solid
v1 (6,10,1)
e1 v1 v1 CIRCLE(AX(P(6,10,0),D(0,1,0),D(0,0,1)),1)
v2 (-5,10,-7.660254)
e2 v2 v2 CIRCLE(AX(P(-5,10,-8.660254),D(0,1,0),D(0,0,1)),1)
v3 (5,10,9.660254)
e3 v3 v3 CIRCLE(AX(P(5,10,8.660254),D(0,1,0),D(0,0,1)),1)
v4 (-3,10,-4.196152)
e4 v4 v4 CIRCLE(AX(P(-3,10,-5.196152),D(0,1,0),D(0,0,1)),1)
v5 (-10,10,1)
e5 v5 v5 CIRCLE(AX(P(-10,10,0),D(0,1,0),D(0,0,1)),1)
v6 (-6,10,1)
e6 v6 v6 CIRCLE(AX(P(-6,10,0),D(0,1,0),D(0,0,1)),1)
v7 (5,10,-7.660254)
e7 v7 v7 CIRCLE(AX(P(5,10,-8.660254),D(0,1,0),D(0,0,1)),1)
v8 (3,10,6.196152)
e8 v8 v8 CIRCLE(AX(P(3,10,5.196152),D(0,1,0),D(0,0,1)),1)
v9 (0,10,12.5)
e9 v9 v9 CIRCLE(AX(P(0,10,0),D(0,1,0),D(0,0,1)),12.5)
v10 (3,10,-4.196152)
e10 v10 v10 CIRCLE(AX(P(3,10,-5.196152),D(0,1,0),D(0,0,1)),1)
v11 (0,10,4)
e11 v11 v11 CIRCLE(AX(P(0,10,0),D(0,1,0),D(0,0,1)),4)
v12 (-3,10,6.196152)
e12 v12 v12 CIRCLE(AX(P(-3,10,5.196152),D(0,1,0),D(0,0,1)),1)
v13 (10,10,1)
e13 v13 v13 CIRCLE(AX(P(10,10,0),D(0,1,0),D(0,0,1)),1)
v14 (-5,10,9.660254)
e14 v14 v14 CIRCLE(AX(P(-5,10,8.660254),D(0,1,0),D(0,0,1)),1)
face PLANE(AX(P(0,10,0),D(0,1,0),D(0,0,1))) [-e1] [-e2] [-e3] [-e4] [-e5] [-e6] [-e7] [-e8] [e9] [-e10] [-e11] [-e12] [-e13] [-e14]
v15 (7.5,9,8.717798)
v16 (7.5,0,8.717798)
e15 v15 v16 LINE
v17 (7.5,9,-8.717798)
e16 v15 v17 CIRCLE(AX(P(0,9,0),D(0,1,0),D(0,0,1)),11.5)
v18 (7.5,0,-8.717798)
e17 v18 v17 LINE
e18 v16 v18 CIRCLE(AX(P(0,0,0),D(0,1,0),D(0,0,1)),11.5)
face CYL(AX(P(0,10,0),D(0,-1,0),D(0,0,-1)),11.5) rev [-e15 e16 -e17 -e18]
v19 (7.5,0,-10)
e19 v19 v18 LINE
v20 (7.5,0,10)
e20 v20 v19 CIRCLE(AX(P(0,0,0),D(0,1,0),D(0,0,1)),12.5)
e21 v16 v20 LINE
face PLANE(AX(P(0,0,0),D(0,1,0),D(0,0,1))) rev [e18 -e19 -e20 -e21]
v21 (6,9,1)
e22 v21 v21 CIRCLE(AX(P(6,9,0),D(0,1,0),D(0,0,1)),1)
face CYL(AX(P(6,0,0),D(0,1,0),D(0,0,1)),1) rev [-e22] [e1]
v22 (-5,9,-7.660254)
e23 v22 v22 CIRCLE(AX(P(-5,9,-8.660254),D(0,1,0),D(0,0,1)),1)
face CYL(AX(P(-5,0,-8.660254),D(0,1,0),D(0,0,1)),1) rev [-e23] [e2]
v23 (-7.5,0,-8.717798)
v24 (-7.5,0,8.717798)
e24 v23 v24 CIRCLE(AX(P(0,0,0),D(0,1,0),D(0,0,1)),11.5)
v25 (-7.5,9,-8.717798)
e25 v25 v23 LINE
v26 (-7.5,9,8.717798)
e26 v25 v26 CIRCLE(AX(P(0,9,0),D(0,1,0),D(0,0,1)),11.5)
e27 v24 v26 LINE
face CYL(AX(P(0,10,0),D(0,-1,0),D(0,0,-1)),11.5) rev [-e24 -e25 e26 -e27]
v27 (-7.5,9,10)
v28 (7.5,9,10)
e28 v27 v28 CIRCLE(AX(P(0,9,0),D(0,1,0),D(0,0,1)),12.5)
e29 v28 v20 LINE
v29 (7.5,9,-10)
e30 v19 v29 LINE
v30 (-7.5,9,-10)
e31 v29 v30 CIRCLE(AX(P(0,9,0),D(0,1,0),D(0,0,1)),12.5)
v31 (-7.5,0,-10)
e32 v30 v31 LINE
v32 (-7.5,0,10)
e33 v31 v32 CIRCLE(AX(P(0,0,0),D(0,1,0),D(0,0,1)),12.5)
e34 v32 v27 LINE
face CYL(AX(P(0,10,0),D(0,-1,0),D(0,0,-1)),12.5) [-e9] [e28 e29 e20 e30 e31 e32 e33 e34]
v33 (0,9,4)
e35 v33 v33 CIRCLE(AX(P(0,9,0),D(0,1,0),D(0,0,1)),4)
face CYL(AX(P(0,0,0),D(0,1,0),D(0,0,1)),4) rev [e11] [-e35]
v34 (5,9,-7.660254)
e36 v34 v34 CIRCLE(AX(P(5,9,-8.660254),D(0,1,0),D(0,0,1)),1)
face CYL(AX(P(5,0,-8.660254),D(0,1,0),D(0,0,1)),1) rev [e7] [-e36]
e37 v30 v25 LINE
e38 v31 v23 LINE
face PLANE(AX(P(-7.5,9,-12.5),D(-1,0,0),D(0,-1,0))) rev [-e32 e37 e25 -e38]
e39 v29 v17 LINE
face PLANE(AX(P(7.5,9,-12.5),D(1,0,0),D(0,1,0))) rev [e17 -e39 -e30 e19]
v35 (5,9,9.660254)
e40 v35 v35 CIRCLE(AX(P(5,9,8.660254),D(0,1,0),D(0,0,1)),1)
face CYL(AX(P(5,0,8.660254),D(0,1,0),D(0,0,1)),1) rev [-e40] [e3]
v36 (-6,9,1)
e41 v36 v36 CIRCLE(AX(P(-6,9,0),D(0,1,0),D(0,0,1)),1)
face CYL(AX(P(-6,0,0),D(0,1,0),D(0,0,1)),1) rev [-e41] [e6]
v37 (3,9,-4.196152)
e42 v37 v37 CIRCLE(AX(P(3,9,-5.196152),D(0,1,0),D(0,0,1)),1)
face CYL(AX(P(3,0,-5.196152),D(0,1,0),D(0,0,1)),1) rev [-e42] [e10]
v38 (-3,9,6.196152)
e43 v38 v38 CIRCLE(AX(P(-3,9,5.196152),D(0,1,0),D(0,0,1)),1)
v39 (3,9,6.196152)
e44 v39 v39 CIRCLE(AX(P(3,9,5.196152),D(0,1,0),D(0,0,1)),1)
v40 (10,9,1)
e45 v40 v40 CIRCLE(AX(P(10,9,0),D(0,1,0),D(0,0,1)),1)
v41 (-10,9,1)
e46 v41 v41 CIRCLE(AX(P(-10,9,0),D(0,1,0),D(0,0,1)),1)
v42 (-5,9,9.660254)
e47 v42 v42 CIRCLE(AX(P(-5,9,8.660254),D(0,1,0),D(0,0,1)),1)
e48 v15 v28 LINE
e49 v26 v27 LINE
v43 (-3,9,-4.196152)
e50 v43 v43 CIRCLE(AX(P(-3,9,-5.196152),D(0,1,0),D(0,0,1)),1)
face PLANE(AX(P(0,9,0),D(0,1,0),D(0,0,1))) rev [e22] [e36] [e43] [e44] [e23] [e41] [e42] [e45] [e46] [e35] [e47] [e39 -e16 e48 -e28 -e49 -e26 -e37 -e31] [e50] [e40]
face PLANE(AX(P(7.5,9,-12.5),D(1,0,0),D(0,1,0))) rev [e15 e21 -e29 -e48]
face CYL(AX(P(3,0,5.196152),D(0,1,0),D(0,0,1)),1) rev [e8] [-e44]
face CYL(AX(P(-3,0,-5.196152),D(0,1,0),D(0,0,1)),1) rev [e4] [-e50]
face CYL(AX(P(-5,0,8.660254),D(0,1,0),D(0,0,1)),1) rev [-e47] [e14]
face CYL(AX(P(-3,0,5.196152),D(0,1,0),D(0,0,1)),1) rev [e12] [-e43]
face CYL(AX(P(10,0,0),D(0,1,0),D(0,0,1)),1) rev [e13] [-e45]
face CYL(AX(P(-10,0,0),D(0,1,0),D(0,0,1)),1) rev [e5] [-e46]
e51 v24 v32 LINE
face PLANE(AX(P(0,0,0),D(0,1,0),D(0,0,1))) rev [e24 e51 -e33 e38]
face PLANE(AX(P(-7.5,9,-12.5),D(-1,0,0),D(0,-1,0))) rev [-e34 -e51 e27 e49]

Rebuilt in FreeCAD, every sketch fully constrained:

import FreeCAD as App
import Part
import Sketcher


def faces_at(feature, points):
    """Names of the faces that lie closest to the given points."""
    faces = feature.Shape.Faces
    near = lambda p: min(range(len(faces)), key=lambda i: faces[i].distToShape(Part.Vertex(*p))[0])
    return sorted({f"Face{near(p) + 1}" for p in points})


def add_polygon(sketch, points):
    """Adds a closed chain of lines whose ends are joined by coincident constraints."""
    first, n = sketch.GeometryCount, len(points)
    for a, b in zip(points, points[1:] + points[:1]):
        sketch.addGeometry(Part.LineSegment(App.Vector(*a, 0), App.Vector(*b, 0)), False)
    for i in range(n):
        sketch.addConstraint(Sketcher.Constraint("Coincident", first + i, 2, first + (i + 1) % n, 1))

doc = App.newDocument("Part")
body = doc.addObject("PartDesign::Body", "Body")

# Sketch on XZ plane
sketch1 = body.newObject("Sketcher::SketchObject", "Sketch")
sketch1.AttachmentSupport = (doc.getObject("XZ_Plane"), [""])
sketch1.MapMode = "FlatFace"
sketch1.addGeometry(Part.Circle(App.Vector(0, 0, 0), App.Vector(0, 0, 1), 12.5), False)
sketch1.addConstraint(Sketcher.Constraint("Coincident", 0, 3, -1, 1))
sketch1.addConstraint(Sketcher.Constraint("Diameter", 0, 25.0))
pad1 = body.newObject("PartDesign::Pad", "Pad")
pad1.Profile = sketch1
pad1.Length = 10
pad1.Reversed = True
doc.recompute()

thickness = body.newObject("PartDesign::Thickness", "Thickness")
thickness.Base = (pad1, faces_at(pad1, [(0, 0, 0)]))
thickness.Value = 1
thickness.Reversed = True
thickness.Join = "Intersection"

# Sketch on XY plane
sketch2 = body.newObject("Sketcher::SketchObject", "Sketch001")
sketch2.AttachmentSupport = (doc.getObject("XY_Plane"), [""])
sketch2.MapMode = "FlatFace"
add_polygon(sketch2, [(-7.5, 9), (-7.5, 0), (7.5, 0), (7.5, 9)])  # lines 0-3
sketch2.addConstraint(Sketcher.Constraint("Vertical", 0))
sketch2.addConstraint(Sketcher.Constraint("Horizontal", 1))
sketch2.addConstraint(Sketcher.Constraint("Vertical", 2))
sketch2.addConstraint(Sketcher.Constraint("Horizontal", 3))
sketch2.addConstraint(Sketcher.Constraint("Symmetric", 0, 2, 1, 2, -1, 1))
sketch2.addConstraint(Sketcher.Constraint("DistanceX", 1, 1, 1, 2, 15.0))
sketch2.addConstraint(Sketcher.Constraint("DistanceY", 0, 2, 0, 1, 9.0))
pocket1 = body.newObject("PartDesign::Pocket", "Pocket")
pocket1.Profile = sketch2
pocket1.Type = "ThroughAll"
pocket1.Midplane = True

# Sketch on XZ plane
sketch3 = body.newObject("Sketcher::SketchObject", "Sketch002")
sketch3.AttachmentSupport = (doc.getObject("XZ_Plane"), [""])
sketch3.MapMode = "FlatFace"
sketch3.AttachmentOffset = App.Placement(App.Vector(0, 0, -10), App.Rotation())
sketch3.addGeometry(Part.Circle(App.Vector(-10, 0, 0), App.Vector(0, 0, 1), 1), False)
sketch3.addGeometry(Part.Circle(App.Vector(-6, 0, 0), App.Vector(0, 0, 1), 1), False)
sketch3.addGeometry(Part.Circle(App.Vector(-5, -8.660254, 0), App.Vector(0, 0, 1), 1), False)
sketch3.addGeometry(Part.Circle(App.Vector(-3, -5.196152, 0), App.Vector(0, 0, 1), 1), False)
sketch3.addGeometry(Part.Circle(App.Vector(5, -8.660254, 0), App.Vector(0, 0, 1), 1), False)
sketch3.addGeometry(Part.Circle(App.Vector(3, -5.196152, 0), App.Vector(0, 0, 1), 1), False)
sketch3.addGeometry(Part.Circle(App.Vector(10, 0, 0), App.Vector(0, 0, 1), 1), False)
sketch3.addGeometry(Part.Circle(App.Vector(6, 0, 0), App.Vector(0, 0, 1), 1), False)
sketch3.addGeometry(Part.Circle(App.Vector(5, 8.660254, 0), App.Vector(0, 0, 1), 1), False)
sketch3.addGeometry(Part.Circle(App.Vector(3, 5.196152, 0), App.Vector(0, 0, 1), 1), False)
sketch3.addGeometry(Part.Circle(App.Vector(-5, 8.660254, 0), App.Vector(0, 0, 1), 1), False)
sketch3.addGeometry(Part.Circle(App.Vector(-3, 5.196152, 0), App.Vector(0, 0, 1), 1), False)
sketch3.addConstraint(Sketcher.Constraint("Equal", 0, 1))
sketch3.addConstraint(Sketcher.Constraint("Equal", 1, 2))
sketch3.addConstraint(Sketcher.Constraint("Equal", 2, 3))
sketch3.addConstraint(Sketcher.Constraint("Equal", 3, 4))
sketch3.addConstraint(Sketcher.Constraint("Equal", 4, 5))
sketch3.addConstraint(Sketcher.Constraint("Equal", 5, 6))
sketch3.addConstraint(Sketcher.Constraint("Equal", 6, 7))
sketch3.addConstraint(Sketcher.Constraint("Equal", 7, 8))
sketch3.addConstraint(Sketcher.Constraint("Equal", 8, 9))
sketch3.addConstraint(Sketcher.Constraint("Equal", 9, 10))
sketch3.addConstraint(Sketcher.Constraint("Equal", 10, 11))
sketch3.addConstraint(Sketcher.Constraint("Symmetric", 0, 3, 6, 3, -1, 1))
sketch3.addConstraint(Sketcher.Constraint("Symmetric", 1, 3, 7, 3, -1, 1))
sketch3.addConstraint(Sketcher.Constraint("Symmetric", 2, 3, 8, 3, -1, 1))
sketch3.addConstraint(Sketcher.Constraint("Symmetric", 3, 3, 9, 3, -1, 1))
sketch3.addConstraint(Sketcher.Constraint("Symmetric", 4, 3, 10, 3, -1, 1))
sketch3.addConstraint(Sketcher.Constraint("Symmetric", 5, 3, 11, 3, -1, 1))
sketch3.addConstraint(Sketcher.Constraint("Symmetric", 2, 3, 4, 3, -2))
sketch3.addConstraint(Sketcher.Constraint("Symmetric", 3, 3, 5, 3, -2))
sketch3.addConstraint(Sketcher.Constraint("PointOnObject", 0, 3, -1))
sketch3.addConstraint(Sketcher.Constraint("PointOnObject", 1, 3, -1))
sketch3.addConstraint(Sketcher.Constraint("Diameter", 0, 2.0))
sketch3.addConstraint(Sketcher.Constraint("DistanceX", 0, 3, -1, 1, 10.0))
sketch3.addConstraint(Sketcher.Constraint("DistanceX", 1, 3, -1, 1, 6.0))
sketch3.addConstraint(Sketcher.Constraint("DistanceX", 2, 3, -1, 1, 5.0))
sketch3.addConstraint(Sketcher.Constraint("DistanceX", 3, 3, -1, 1, 3.0))
sketch3.addConstraint(Sketcher.Constraint("DistanceY", 2, 3, 3, 3, 3.464102))
sketch3.addConstraint(Sketcher.Constraint("DistanceY", 2, 3, -1, 1, 8.660254))
pocket2 = body.newObject("PartDesign::Pocket", "Pocket001")
pocket2.Profile = sketch3
pocket2.Length = 10
pocket2.Reversed = True

# Sketch on XZ plane
sketch4 = body.newObject("Sketcher::SketchObject", "Sketch003")
sketch4.AttachmentSupport = (doc.getObject("XZ_Plane"), [""])
sketch4.MapMode = "FlatFace"
sketch4.AttachmentOffset = App.Placement(App.Vector(0, 0, -10), App.Rotation())
sketch4.addGeometry(Part.Circle(App.Vector(0, 0, 0), App.Vector(0, 0, 1), 4), False)
sketch4.addConstraint(Sketcher.Constraint("Coincident", 0, 3, -1, 1))
sketch4.addConstraint(Sketcher.Constraint("Diameter", 0, 8.0))
pocket3 = body.newObject("PartDesign::Pocket", "Pocket002")
pocket3.Profile = sketch4
pocket3.Length = 10
pocket3.Reversed = True

doc.recompute()
